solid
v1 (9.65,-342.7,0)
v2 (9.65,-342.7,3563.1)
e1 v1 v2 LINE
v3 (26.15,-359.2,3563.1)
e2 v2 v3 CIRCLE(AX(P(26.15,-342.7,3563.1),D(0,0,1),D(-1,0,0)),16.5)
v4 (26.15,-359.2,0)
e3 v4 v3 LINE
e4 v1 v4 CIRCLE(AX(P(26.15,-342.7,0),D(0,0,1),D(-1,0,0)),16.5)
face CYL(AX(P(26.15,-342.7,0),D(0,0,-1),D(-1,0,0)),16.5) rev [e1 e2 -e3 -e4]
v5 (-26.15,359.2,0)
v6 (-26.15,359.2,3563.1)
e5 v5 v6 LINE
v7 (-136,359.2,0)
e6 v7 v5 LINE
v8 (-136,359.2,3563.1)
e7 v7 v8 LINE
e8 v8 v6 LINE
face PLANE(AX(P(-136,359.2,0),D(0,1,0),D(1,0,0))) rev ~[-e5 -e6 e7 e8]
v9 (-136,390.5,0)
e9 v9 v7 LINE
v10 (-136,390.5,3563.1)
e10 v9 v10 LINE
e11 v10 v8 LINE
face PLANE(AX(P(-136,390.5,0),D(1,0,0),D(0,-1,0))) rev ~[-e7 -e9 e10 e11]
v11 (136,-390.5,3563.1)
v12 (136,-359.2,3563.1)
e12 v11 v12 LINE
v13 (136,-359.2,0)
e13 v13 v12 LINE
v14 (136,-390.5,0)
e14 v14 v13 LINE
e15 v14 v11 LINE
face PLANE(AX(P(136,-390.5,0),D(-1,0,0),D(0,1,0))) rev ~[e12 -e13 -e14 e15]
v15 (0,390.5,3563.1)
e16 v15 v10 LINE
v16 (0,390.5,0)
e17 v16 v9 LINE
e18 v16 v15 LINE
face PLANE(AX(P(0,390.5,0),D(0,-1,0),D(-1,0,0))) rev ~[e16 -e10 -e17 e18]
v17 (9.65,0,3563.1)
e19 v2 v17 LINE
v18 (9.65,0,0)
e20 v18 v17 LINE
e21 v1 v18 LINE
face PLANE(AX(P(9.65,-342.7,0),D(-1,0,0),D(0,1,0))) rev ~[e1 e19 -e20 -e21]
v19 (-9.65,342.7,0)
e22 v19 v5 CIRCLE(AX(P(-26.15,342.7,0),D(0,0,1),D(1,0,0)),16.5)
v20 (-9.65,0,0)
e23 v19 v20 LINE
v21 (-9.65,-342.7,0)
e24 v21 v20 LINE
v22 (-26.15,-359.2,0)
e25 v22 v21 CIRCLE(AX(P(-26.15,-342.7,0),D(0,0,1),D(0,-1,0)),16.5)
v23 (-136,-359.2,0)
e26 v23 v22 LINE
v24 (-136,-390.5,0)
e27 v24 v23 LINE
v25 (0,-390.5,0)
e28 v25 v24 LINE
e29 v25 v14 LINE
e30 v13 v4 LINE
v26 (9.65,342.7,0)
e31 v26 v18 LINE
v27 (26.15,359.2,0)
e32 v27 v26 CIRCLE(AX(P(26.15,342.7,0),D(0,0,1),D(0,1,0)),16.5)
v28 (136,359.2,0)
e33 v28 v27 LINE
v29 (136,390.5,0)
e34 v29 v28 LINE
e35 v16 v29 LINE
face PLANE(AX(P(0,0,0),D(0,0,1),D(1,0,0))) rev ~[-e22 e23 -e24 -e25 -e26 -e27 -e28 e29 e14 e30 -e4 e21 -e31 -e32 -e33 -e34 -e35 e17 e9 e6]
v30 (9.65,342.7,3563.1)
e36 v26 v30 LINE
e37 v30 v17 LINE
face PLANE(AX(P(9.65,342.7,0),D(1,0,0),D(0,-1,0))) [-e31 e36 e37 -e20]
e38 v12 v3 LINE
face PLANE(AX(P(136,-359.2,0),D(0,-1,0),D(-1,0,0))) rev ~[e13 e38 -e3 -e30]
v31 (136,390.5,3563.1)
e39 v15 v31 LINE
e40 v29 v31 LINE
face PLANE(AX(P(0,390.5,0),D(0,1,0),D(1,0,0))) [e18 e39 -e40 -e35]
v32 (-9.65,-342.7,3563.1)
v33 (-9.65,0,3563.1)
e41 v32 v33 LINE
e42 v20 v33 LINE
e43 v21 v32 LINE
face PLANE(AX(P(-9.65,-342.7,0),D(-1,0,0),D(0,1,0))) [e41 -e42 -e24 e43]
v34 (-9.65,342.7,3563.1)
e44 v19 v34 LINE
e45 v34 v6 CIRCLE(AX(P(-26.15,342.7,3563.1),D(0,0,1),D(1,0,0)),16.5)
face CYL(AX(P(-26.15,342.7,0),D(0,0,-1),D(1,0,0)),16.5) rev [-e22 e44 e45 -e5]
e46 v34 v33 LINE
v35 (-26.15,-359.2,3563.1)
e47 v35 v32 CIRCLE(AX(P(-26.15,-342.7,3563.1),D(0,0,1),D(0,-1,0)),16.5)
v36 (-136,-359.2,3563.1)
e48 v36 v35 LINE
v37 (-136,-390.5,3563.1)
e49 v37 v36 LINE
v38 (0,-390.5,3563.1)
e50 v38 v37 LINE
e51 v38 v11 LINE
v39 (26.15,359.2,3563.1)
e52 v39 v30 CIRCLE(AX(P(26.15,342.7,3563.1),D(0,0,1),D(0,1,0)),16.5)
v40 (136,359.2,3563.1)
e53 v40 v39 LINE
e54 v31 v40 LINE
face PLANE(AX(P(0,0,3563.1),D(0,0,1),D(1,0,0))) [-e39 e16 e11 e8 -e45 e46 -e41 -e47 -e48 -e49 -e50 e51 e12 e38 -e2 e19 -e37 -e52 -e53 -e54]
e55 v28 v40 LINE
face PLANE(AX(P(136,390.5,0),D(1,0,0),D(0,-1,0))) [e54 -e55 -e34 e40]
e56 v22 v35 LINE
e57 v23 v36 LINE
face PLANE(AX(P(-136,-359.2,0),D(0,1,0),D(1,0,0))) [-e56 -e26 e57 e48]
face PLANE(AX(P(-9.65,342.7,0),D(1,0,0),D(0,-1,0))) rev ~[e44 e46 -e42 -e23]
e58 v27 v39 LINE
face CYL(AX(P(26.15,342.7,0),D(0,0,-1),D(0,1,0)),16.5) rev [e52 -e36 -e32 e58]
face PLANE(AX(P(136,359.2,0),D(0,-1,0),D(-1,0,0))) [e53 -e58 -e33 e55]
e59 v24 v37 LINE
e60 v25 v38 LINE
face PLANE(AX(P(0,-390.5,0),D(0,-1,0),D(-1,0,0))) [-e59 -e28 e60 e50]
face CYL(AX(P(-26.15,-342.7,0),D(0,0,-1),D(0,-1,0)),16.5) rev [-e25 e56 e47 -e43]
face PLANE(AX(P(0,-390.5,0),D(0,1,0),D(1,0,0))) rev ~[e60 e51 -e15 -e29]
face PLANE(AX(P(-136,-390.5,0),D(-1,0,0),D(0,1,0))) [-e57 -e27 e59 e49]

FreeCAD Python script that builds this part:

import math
import FreeCAD as App
import Part
import Sketcher

doc = App.newDocument("Part")
body = doc.addObject("PartDesign::Body", "Body")

# Sketch on XY plane
sketch1 = body.newObject("Sketcher::SketchObject", "Sketch")
sketch1.AttachmentSupport = (doc.getObject("XY_Plane"), [""])
sketch1.MapMode = "FlatFace"
sketch1.addGeometry([
    Part.LineSegment(App.Vector(-136, -359, 0), App.Vector(-136, -390, 0)),  # 0
    Part.LineSegment(App.Vector(-136, -390, 0), App.Vector(136, -390, 0)),  # 1
    Part.LineSegment(App.Vector(136, -390, 0), App.Vector(136, -359, 0)),  # 2
    Part.LineSegment(App.Vector(136, -359, 0), App.Vector(26, -359, 0)),  # 3
    Part.ArcOfCircle(Part.Circle(App.Vector(26, -343, 0), App.Vector(0, 0, 1), 16), math.radians(180), math.radians(270)),  # 4
    Part.LineSegment(App.Vector(10, -343, 0), App.Vector(10, 343, 0)),  # 5
    Part.ArcOfCircle(Part.Circle(App.Vector(26, 343, 0), App.Vector(0, 0, 1), 16), math.radians(90), math.radians(180)),  # 6
    Part.LineSegment(App.Vector(26, 359, 0), App.Vector(136, 359, 0)),  # 7
    Part.LineSegment(App.Vector(136, 359, 0), App.Vector(136, 390, 0)),  # 8
    Part.LineSegment(App.Vector(136, 390, 0), App.Vector(-136, 390, 0)),  # 9
    Part.LineSegment(App.Vector(-136, 390, 0), App.Vector(-136, 359, 0)),  # 10
    Part.LineSegment(App.Vector(-136, 359, 0), App.Vector(-26, 359, 0)),  # 11
    Part.ArcOfCircle(Part.Circle(App.Vector(-26, 343, 0), App.Vector(0, 0, 1), 16), math.radians(0), math.radians(90)),  # 12
    Part.LineSegment(App.Vector(-10, 343, 0), App.Vector(-10, -343, 0)),  # 13
    Part.ArcOfCircle(Part.Circle(App.Vector(-26, -343, 0), App.Vector(0, 0, 1), 16), math.radians(-90), math.radians(0)),  # 14
    Part.LineSegment(App.Vector(-26, -359, 0), App.Vector(-136, -359, 0)),  # 15
], False)
sketch1.addConstraint([
    Sketcher.Constraint("Coincident", 0, 2, 1, 1),
    Sketcher.Constraint("Coincident", 1, 2, 2, 1),
    Sketcher.Constraint("Coincident", 2, 2, 3, 1),
    Sketcher.Constraint("Tangent", 3, 2, 4, 2),
    Sketcher.Constraint("Tangent", 4, 1, 5, 1),
    Sketcher.Constraint("Tangent", 5, 2, 6, 2),
    Sketcher.Constraint("Tangent", 6, 1, 7, 1),
    Sketcher.Constraint("Coincident", 7, 2, 8, 1),
    Sketcher.Constraint("Coincident", 8, 2, 9, 1),
    Sketcher.Constraint("Coincident", 9, 2, 10, 1),
    Sketcher.Constraint("Coincident", 10, 2, 11, 1),
    Sketcher.Constraint("Tangent", 11, 2, 12, 2),
    Sketcher.Constraint("Tangent", 12, 1, 13, 1),
    Sketcher.Constraint("Tangent", 13, 2, 14, 2),
    Sketcher.Constraint("Tangent", 14, 1, 15, 1),
    Sketcher.Constraint("Coincident", 15, 2, 0, 1),
    Sketcher.Constraint("Vertical", 0),
    Sketcher.Constraint("Horizontal", 1),
    Sketcher.Constraint("Vertical", 2),
    Sketcher.Constraint("Horizontal", 3),
    Sketcher.Constraint("Vertical", 5),
    Sketcher.Constraint("Horizontal", 7),
    Sketcher.Constraint("Vertical", 8),
    Sketcher.Constraint("Horizontal", 9),
    Sketcher.Constraint("Vertical", 10),
    Sketcher.Constraint("Horizontal", 11),
    Sketcher.Constraint("Vertical", 13),
    Sketcher.Constraint("Horizontal", 15),
    Sketcher.Constraint("Equal", 4, 6),
    Sketcher.Constraint("Equal", 6, 12),
    Sketcher.Constraint("Equal", 12, 14),
    Sketcher.Constraint("Symmetric", 4, 3, 12, 3, -1, 1),
    Sketcher.Constraint("Symmetric", 0, 2, 8, 2, -1, 1),
    Sketcher.Constraint("Symmetric", 7, 2, 10, 2, -2),
    Sketcher.Constraint("Symmetric", 2, 2, 15, 2, -2),
    Sketcher.Constraint("Radius", 4, 16.5),
    Sketcher.Constraint("DistanceY", 0, 2, 0, 1, 31.3),
    Sketcher.Constraint("DistanceX", 0, 2, -1, 1, 136.0),
    Sketcher.Constraint("DistanceY", 0, 2, -1, 1, 390.5),
    Sketcher.Constraint("DistanceX", -1, 1, 4, 1, 9.65),
])
pad1 = body.newObject("PartDesign::Pad", "Pad")
pad1.Profile = sketch1
pad1.Length = 3563.1

doc.recompute()
